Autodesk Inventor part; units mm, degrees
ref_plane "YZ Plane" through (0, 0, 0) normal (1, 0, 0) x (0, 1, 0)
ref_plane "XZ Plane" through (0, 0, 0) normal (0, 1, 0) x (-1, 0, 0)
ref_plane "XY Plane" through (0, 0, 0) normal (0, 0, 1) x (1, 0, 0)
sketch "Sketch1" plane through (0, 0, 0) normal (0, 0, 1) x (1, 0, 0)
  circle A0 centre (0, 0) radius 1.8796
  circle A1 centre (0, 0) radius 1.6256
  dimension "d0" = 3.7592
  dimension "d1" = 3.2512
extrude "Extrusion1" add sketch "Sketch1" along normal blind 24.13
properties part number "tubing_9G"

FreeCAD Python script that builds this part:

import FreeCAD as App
import Part
import Sketcher
Q = App.Units.Quantity

doc = App.newDocument("Part")
body = doc.addObject("PartDesign::Body", "Body")

sketch1 = body.newObject("Sketcher::SketchObject", "Sketch")
sketch1.AttachmentSupport = (doc.getObject("XY_Plane"), [""])
sketch1.MapMode = "FlatFace"
sketch1.addGeometry(Part.Circle(App.Vector(0, 0, 0), App.Vector(0, 0, 1), 1.9), False)
sketch1.addGeometry(Part.Circle(App.Vector(0, 0, 0), App.Vector(0, 0, 1), 1.6), False)
sketch1.addConstraint(Sketcher.Constraint("Coincident", 0, 3, -1, 1))
sketch1.addConstraint(Sketcher.Constraint("Coincident", 1, 3, -1, 1))
sketch1.addConstraint(Sketcher.Constraint("Diameter", 0, Q("0.148 in")))
sketch1.addConstraint(Sketcher.Constraint("Diameter", 1, Q("0.128 in")))
pad1 = body.newObject("PartDesign::Pad", "Pad")
pad1.Profile = sketch1
pad1.Length = Q("0.95 in")

doc.recompute()
